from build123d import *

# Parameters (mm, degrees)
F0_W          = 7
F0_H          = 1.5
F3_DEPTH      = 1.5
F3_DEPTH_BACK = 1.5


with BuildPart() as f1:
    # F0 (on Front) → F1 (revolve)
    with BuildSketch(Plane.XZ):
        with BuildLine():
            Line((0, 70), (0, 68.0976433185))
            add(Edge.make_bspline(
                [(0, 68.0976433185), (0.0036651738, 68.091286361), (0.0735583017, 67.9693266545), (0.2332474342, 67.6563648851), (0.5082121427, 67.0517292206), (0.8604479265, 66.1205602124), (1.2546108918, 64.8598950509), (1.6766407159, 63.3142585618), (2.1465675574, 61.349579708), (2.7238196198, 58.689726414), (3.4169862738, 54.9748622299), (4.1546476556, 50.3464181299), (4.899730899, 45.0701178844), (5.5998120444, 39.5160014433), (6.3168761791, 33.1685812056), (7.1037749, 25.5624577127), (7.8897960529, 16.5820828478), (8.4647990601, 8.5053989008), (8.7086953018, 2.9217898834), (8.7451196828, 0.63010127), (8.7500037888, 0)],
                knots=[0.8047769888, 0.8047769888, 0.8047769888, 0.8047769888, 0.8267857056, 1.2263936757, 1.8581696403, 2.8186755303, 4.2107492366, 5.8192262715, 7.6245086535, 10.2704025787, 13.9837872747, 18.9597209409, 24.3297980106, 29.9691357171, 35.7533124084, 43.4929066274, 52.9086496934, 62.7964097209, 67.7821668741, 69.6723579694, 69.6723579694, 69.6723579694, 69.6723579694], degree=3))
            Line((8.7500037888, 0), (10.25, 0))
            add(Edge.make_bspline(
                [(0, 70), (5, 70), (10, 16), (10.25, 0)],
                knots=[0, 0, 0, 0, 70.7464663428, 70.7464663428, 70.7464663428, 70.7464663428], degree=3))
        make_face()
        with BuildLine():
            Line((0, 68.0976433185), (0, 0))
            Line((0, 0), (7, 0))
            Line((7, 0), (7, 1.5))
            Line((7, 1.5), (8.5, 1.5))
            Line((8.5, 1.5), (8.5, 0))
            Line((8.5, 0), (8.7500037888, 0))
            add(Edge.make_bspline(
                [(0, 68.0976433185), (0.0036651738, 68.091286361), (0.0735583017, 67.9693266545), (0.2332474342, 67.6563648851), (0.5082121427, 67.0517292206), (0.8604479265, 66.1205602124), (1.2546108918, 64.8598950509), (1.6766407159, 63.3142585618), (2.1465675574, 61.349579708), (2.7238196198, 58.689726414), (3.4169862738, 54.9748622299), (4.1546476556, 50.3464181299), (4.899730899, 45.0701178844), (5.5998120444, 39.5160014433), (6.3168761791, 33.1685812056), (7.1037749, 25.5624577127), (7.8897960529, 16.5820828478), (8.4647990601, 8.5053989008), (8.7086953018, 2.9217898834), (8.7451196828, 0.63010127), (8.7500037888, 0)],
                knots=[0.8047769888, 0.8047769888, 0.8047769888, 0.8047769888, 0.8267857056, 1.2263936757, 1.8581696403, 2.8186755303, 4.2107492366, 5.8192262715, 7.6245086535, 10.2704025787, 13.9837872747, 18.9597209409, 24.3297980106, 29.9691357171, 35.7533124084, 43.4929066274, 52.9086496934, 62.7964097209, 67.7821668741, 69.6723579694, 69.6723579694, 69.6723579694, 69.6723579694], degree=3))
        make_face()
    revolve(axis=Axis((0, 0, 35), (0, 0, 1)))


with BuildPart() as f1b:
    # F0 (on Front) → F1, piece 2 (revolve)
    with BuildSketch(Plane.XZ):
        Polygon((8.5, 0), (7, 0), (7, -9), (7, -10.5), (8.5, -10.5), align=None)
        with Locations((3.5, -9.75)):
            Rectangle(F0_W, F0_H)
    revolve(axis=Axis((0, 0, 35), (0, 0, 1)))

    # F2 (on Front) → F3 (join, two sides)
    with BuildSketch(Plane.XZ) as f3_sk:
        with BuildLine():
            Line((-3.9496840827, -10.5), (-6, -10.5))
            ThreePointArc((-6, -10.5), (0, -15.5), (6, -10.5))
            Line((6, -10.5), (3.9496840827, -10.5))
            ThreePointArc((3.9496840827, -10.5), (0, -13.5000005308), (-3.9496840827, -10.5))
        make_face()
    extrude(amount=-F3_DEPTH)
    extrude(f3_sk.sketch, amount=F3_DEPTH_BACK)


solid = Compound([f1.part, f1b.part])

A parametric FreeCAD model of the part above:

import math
import FreeCAD as App
import Part
import Sketcher
from FreeCAD import Vector
Q = App.Units.Quantity


def add_polygon(sketch, points):
    """Adds a closed chain of lines whose ends are joined by coincident constraints."""
    first, n = sketch.GeometryCount, len(points)
    for a, b in zip(points, points[1:] + points[:1]):
        sketch.addGeometry(Part.LineSegment(App.Vector(*a, 0), App.Vector(*b, 0)), False)
    for i in range(n):
        sketch.addConstraint(Sketcher.Constraint("Coincident", first + i, 2, first + (i + 1) % n, 1))

doc = App.newDocument("Part")
body = doc.addObject("PartDesign::Body", "Body")

# Sketch on XZ plane
sketch1 = doc.addObject("Sketcher::SketchObject", "Sketch")
body.addObject(sketch1)
sketch1.AttachmentSupport = (doc.XZ_Plane, [""])
sketch1.MapMode = "FlatFace"
sketch1.addGeometry([
    Part.LineSegment(Vector(0, 70, 0), Vector(0, 0, 0)),  # 0
    Part.LineSegment(Vector(0, 0, 0), Vector(7, 0, 0)),  # 1
    Part.LineSegment(Vector(7, 0, 0), Vector(7, 1.5, 0)),  # 2
    Part.LineSegment(Vector(7, 1.5, 0), Vector(8.5, 1.5, 0)),  # 3
    Part.LineSegment(Vector(8.5, 1.5, 0), Vector(8.5, 0, 0)),  # 4
    Part.LineSegment(Vector(8.5, 0, 0), Vector(10.25, 0, 0)),  # 5
    Part.BSplineCurve([Vector(0, 70, 0), Vector(5, 70, 0), Vector(10, 16, 0), Vector(10.25, 0, 0)], [4, 4], [0, 70.746466343], False, 3, [1, 1, 1, 1], False),  # 6
], False)
sketch1.addConstraint([
    Sketcher.Constraint("Block", 6),
    Sketcher.Constraint("Coincident", 0, 2, 1, 1),
    Sketcher.Constraint("Coincident", 1, 2, 2, 1),
    Sketcher.Constraint("Coincident", 2, 2, 3, 1),
    Sketcher.Constraint("Coincident", 3, 2, 4, 1),
    Sketcher.Constraint("Coincident", 4, 2, 5, 1),
    Sketcher.Constraint("Coincident", 5, 2, 6, 2),
    Sketcher.Constraint("Coincident", 6, 1, 0, 1),
    Sketcher.Constraint("Vertical", 0),
    Sketcher.Constraint("Horizontal", 1),
    Sketcher.Constraint("Vertical", 2),
    Sketcher.Constraint("Horizontal", 3),
    Sketcher.Constraint("Vertical", 4),
    Sketcher.Constraint("Horizontal", 5),
    Sketcher.Constraint("PointOnObject", 1, 2, -1),
    Sketcher.Constraint("Equal", 3, 2),
    Sketcher.Constraint("DistanceX", 1, 1, 1, 2, Q("7 mm")),
    Sketcher.Constraint("DistanceX", 3, 1, 3, 2, Q("1.5 mm")),
])
revolution = doc.addObject("PartDesign::Revolution", "Revolution")
body.addObject(revolution)
revolution.Profile = sketch1
revolution.ReferenceAxis = (sketch1, ["V_Axis"])
revolution.Angle = 360
body2 = doc.addObject("PartDesign::Body", "Body001")

# Sketch on XZ plane
sketch2 = doc.addObject("Sketcher::SketchObject", "Sketch001")
body2.addObject(sketch2)
sketch2.AttachmentSupport = (doc.getObject("XZ_Plane001"), [""])
sketch2.MapMode = "FlatFace"
add_polygon(sketch2, [(8.5, 0), (7, 0), (7, -9), (0, -9), (0, -10.5), (8.5, -10.5)])  # lines 0-5
sketch2.addConstraint([
    Sketcher.Constraint("Horizontal", 0),
    Sketcher.Constraint("Vertical", 1),
    Sketcher.Constraint("Horizontal", 2),
    Sketcher.Constraint("Vertical", 3),
    Sketcher.Constraint("Horizontal", 4),
    Sketcher.Constraint("Vertical", 5),
    Sketcher.Constraint("PointOnObject", 0, 2, -1),
    Sketcher.Constraint("PointOnObject", 2, 2, -2),
    Sketcher.Constraint("Equal", 0, 3),
    Sketcher.Constraint("DistanceX", 2, 2, 2, 1, Q("7 mm")),
    Sketcher.Constraint("DistanceY", 1, 2, 1, 1, Q("9 mm")),
    Sketcher.Constraint("DistanceX", 0, 2, 0, 1, Q("1.5 mm")),
])
revolution2 = doc.addObject("PartDesign::Revolution", "Revolution001")
body2.addObject(revolution2)
revolution2.Profile = sketch2
revolution2.ReferenceAxis = (sketch2, ["V_Axis"])
revolution2.Angle = 360

# Sketch on XZ plane
sketch3 = doc.addObject("Sketcher::SketchObject", "Sketch002")
body2.addObject(sketch3)
sketch3.AttachmentSupport = (doc.getObject("XZ_Plane001"), [""])
sketch3.MapMode = "FlatFace"
sketch3.addGeometry([
    Part.LineSegment(Vector(-3.9, -10.5, 0), Vector(-6, -10.5, 0)),
    Part.ArcOfCircle(Part.Circle(Vector(0, -9.4, 0), Vector(0, 0, 1), 6.1), math.radians(-170), math.radians(-10)),
    Part.LineSegment(Vector(6, -10.5, 0), Vector(3.9, -10.5, 0)),
    Part.ArcOfCircle(Part.Circle(Vector(0, -9.4, 0), Vector(0, 0, 1), 4.1), math.radians(-164), math.radians(-16)),
], False)
sketch3.addConstraint([
    Sketcher.Constraint("Coincident", 0, 2, 1, 1),
    Sketcher.Constraint("Coincident", 1, 2, 2, 1),
    Sketcher.Constraint("Coincident", 2, 2, 3, 2),
    Sketcher.Constraint("Coincident", 3, 1, 0, 1),
    Sketcher.Constraint("Horizontal", 0),
    Sketcher.Constraint("Horizontal", 2),
    Sketcher.Constraint("Coincident", 3, 3, 1, 3),
    Sketcher.Constraint("Symmetric", 0, 2, 1, 2, -2),
    Sketcher.Constraint("Radius", 1, Q("6.1 mm")),
    Sketcher.Constraint("Radius", 3, Q("4.100001 mm")),
    Sketcher.Constraint("DistanceX", 0, 2, -1, 1, Q("6 mm")),
    Sketcher.Constraint("DistanceY", 1, 3, -1, 1, Q("9.4 mm")),
])
pad1 = doc.addObject("PartDesign::Pad", "Pad")
body2.addObject(pad1)
pad1.Profile = sketch3
pad1.Type = "TwoLengths"
pad1.Length = 1.5
pad1.Length2 = 1.5
pad1.Reversed = True

doc.recompute()
